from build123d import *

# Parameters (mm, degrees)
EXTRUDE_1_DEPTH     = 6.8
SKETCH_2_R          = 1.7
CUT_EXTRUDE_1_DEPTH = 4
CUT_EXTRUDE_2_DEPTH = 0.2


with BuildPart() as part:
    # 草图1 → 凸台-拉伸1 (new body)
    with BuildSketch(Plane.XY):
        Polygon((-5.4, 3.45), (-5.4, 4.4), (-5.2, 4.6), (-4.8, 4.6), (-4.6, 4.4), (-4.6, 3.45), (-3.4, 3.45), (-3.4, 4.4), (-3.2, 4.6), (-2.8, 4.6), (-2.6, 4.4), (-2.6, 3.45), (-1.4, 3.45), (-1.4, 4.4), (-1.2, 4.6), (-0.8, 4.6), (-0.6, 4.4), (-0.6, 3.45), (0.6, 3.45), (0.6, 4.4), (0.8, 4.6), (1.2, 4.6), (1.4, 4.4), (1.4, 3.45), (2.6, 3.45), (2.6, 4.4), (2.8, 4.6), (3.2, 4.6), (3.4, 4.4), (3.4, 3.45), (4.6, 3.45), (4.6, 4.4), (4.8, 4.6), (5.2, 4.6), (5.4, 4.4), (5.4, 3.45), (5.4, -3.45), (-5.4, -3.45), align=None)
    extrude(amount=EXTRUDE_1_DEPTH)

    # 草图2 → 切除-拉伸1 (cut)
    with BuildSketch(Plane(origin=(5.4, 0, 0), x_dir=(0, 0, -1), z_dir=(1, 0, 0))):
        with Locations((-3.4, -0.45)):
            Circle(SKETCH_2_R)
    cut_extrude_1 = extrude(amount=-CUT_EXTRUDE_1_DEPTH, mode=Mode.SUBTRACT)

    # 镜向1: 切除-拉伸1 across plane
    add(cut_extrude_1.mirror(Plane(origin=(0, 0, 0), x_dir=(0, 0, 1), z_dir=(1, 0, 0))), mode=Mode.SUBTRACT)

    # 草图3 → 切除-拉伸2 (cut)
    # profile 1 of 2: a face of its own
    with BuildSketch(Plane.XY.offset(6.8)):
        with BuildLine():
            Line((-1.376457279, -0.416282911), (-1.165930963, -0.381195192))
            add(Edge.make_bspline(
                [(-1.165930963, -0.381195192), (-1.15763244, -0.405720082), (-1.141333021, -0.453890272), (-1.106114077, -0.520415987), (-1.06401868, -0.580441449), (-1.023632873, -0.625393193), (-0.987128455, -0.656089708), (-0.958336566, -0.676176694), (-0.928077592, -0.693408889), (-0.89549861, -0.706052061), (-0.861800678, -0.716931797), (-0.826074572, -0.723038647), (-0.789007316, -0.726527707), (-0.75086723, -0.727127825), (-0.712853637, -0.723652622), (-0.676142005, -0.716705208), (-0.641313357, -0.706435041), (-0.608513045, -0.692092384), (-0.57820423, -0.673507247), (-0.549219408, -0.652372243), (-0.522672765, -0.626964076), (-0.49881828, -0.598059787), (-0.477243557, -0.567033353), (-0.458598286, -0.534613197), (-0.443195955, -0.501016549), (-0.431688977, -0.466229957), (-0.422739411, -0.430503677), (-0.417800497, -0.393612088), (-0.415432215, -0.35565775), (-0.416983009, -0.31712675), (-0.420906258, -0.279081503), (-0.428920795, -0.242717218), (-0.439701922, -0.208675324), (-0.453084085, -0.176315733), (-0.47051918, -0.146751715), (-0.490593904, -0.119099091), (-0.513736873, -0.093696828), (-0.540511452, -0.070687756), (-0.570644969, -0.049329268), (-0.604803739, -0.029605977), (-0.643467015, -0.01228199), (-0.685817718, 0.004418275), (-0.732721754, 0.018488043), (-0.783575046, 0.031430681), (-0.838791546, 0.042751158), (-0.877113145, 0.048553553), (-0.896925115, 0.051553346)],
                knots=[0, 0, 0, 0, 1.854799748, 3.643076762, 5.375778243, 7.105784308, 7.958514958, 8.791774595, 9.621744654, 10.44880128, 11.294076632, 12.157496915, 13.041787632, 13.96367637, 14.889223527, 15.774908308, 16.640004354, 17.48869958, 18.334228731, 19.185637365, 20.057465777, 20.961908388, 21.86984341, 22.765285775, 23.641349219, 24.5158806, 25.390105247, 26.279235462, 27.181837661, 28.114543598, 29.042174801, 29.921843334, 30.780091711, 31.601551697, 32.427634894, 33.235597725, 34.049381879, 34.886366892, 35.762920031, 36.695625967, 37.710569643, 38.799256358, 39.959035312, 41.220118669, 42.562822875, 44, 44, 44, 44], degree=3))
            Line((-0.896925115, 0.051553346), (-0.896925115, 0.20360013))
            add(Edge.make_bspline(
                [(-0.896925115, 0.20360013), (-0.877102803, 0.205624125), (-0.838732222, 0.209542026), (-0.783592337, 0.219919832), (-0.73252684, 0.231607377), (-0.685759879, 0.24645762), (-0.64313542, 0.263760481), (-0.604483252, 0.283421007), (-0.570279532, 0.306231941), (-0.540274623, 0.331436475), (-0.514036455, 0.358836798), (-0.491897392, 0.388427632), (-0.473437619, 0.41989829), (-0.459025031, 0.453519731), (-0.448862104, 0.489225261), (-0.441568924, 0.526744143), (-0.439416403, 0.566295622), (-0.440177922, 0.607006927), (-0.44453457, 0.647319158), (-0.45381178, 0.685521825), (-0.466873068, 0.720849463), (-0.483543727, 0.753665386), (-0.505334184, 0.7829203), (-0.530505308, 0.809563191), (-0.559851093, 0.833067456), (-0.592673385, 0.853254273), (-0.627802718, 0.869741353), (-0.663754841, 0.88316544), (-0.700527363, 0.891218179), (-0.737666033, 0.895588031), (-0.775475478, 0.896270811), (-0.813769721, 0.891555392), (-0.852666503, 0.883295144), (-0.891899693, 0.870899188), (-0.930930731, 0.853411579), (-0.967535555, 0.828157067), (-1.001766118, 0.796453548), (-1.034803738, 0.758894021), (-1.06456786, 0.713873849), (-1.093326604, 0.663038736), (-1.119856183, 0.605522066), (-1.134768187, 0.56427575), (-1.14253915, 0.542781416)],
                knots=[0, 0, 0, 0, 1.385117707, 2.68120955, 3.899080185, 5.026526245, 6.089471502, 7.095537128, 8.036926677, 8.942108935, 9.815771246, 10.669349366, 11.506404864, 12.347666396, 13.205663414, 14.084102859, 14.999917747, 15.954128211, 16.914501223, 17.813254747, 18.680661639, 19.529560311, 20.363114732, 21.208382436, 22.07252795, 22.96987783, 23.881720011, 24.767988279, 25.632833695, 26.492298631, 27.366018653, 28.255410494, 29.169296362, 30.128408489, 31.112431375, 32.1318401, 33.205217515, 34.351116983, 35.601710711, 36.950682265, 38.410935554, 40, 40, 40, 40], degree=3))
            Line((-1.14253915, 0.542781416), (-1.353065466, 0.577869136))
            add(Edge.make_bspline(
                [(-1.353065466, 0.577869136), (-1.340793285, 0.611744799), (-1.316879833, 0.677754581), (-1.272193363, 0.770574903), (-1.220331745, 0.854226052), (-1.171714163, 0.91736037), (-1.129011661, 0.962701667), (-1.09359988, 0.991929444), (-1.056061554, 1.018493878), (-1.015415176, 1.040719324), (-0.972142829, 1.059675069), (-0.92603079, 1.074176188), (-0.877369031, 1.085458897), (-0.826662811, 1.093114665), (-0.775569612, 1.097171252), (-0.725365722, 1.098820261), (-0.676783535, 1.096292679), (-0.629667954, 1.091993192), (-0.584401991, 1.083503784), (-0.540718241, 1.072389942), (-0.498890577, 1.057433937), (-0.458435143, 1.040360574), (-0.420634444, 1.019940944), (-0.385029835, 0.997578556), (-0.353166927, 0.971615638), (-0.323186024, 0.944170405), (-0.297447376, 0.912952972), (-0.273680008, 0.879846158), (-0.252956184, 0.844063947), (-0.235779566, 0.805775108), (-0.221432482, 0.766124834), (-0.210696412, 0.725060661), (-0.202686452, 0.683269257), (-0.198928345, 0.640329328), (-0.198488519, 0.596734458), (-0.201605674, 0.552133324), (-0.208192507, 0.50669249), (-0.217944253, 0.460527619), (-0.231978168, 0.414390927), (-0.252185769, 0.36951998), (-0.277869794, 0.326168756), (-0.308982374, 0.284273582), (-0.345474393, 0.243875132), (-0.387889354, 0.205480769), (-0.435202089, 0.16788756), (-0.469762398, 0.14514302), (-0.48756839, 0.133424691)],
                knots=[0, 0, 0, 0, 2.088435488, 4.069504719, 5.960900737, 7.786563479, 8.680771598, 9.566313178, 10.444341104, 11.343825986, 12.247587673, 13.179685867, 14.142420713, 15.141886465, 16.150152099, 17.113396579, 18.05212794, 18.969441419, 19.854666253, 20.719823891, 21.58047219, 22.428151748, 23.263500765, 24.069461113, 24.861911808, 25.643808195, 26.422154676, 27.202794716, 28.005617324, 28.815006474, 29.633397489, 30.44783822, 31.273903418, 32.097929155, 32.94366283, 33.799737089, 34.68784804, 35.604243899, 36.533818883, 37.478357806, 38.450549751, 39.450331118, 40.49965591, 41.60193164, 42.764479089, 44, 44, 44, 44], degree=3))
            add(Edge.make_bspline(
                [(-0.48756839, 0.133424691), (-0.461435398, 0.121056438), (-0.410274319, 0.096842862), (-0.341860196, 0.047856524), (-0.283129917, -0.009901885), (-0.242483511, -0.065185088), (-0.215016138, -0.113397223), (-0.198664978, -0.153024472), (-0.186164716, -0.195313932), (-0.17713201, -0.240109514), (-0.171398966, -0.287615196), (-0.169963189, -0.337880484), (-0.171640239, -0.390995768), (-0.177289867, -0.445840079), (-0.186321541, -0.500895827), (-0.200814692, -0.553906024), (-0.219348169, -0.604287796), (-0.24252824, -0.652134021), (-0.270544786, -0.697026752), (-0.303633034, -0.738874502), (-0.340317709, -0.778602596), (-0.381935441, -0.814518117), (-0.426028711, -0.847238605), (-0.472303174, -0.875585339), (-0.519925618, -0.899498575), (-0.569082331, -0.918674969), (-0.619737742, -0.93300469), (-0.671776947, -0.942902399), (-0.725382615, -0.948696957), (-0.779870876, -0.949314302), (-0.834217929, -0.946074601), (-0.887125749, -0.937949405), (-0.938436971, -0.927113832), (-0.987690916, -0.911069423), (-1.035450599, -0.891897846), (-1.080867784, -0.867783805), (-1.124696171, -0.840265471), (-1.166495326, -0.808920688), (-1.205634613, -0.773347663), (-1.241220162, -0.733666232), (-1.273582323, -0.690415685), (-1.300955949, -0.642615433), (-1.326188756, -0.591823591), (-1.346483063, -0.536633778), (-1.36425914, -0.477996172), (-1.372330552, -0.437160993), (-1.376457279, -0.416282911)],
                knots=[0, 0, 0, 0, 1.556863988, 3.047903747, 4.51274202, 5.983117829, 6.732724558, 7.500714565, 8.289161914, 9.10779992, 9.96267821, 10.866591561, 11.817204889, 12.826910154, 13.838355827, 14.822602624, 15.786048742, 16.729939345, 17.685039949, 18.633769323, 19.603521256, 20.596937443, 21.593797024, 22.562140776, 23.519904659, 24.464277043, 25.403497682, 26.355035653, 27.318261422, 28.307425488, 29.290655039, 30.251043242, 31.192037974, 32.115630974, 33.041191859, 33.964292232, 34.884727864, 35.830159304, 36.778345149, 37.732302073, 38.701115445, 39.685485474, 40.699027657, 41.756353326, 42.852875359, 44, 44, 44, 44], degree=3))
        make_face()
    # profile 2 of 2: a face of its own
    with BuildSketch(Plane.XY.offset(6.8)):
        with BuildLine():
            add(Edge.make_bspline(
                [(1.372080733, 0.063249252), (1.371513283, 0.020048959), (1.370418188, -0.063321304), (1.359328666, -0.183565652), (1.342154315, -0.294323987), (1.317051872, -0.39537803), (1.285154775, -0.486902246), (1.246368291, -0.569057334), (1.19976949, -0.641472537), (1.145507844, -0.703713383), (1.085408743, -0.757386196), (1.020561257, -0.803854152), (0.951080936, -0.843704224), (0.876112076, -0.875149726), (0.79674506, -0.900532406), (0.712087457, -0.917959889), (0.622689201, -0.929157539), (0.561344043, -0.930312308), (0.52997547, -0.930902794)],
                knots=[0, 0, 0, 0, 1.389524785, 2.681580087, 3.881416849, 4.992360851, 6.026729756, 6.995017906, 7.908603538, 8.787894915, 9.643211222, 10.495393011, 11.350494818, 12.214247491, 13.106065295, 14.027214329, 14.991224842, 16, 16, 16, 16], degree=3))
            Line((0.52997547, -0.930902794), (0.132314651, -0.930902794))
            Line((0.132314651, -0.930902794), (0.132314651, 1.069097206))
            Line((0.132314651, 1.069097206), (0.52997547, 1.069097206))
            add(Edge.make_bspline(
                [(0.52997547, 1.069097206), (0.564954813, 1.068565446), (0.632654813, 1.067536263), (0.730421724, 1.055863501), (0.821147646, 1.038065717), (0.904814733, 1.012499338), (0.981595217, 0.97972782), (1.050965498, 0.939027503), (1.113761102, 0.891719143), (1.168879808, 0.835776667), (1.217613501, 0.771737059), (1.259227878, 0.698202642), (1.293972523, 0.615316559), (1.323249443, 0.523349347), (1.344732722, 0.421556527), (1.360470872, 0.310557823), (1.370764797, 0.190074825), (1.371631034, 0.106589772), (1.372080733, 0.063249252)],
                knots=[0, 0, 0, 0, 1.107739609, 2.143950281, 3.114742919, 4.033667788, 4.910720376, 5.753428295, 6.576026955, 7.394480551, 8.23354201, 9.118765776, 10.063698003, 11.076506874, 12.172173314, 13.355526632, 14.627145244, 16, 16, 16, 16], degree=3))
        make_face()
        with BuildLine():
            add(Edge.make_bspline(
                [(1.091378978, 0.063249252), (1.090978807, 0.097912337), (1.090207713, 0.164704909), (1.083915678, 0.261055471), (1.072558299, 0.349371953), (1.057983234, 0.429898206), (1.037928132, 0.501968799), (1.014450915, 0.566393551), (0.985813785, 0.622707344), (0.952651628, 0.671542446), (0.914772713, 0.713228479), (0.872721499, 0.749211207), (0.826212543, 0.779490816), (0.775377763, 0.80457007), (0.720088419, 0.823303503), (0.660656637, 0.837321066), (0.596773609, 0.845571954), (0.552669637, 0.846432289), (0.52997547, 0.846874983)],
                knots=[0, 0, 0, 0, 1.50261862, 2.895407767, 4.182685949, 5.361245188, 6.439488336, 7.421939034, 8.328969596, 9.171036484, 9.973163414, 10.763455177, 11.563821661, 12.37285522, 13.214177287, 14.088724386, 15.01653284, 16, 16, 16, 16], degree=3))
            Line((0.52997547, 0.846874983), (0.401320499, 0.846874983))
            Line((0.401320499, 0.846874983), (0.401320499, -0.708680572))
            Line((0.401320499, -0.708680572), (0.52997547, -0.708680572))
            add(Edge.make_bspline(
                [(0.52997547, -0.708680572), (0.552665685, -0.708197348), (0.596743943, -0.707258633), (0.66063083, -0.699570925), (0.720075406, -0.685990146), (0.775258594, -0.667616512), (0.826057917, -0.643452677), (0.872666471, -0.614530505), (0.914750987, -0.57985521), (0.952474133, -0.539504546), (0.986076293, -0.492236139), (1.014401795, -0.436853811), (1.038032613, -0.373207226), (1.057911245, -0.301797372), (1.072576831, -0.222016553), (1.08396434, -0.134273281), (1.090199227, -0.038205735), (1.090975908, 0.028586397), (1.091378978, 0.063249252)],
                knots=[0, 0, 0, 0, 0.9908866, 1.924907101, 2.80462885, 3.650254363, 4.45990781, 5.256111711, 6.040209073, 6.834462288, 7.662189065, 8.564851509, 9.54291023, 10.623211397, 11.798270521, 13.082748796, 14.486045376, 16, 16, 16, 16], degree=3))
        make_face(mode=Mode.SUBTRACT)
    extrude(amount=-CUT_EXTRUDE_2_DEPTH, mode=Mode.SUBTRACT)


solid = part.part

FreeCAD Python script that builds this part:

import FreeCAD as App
import Part
import Sketcher
Q = App.Units.Quantity

doc = App.newDocument("Part")
params = doc.addObject("Spreadsheet::Sheet", "Params")
for row, (alias, value) in enumerate([
    ("sketch1_width", "10.8 mm"),
    ("sketch1_width2", "0.4 mm"),
    ("sketch1_width3", "1.2 mm"),
    ("sketch1_height", "7.85 mm"),
    ("sketch1_height2", "0.95 mm"),
    ("pad1_length", "6.8 mm"),
    ("sketch2_diameter", "3.4 mm"),
    ("pocket1_length", "4 mm"),
    ("pocket2_length", "0.2 mm"),
], start=1):
    params.set(f"A{row}", alias)
    params.set(f"B{row}", "=" + value)
    params.setAlias(f"B{row}", alias)

body = doc.addObject("PartDesign::Body", "Body")

# Sketch on XY plane
sketch1 = body.newObject("Sketcher::SketchObject", "Sketch")
sketch1.AttachmentSupport = (doc.getObject("XY_Plane"), [""])
sketch1.MapMode = "FlatFace"
sketch1.addGeometry([
    Part.LineSegment(App.Vector(-5.4, 4.4, 0), App.Vector(-5.4, -3.45, 0)),  # 0
    Part.LineSegment(App.Vector(-5.4, -3.45, 0), App.Vector(5.4, -3.45, 0)),  # 1
    Part.LineSegment(App.Vector(5.4, -3.45, 0), App.Vector(5.4, 4.4, 0)),  # 2
    Part.LineSegment(App.Vector(5.4, 4.4, 0), App.Vector(5.2, 4.6, 0)),  # 3
    Part.LineSegment(App.Vector(5.2, 4.6, 0), App.Vector(4.8, 4.6, 0)),  # 4
    Part.LineSegment(App.Vector(4.8, 4.6, 0), App.Vector(4.6, 4.4, 0)),  # 5
    Part.LineSegment(App.Vector(4.6, 4.4, 0), App.Vector(4.6, 3.45, 0)),  # 6
    Part.LineSegment(App.Vector(4.6, 3.45, 0), App.Vector(3.4, 3.45, 0)),  # 7
    Part.LineSegment(App.Vector(3.4, 3.45, 0), App.Vector(3.4, 4.4, 0)),  # 8
    Part.LineSegment(App.Vector(3.4, 4.4, 0), App.Vector(3.2, 4.6, 0)),  # 9
    Part.LineSegment(App.Vector(3.2, 4.6, 0), App.Vector(2.8, 4.6, 0)),  # 10
    Part.LineSegment(App.Vector(2.8, 4.6, 0), App.Vector(2.6, 4.4, 0)),  # 11
    Part.LineSegment(App.Vector(2.6, 4.4, 0), App.Vector(2.6, 3.45, 0)),  # 12
    Part.LineSegment(App.Vector(2.6, 3.45, 0), App.Vector(1.4, 3.45, 0)),  # 13
    Part.LineSegment(App.Vector(1.4, 3.45, 0), App.Vector(1.4, 4.4, 0)),  # 14
    Part.LineSegment(App.Vector(1.4, 4.4, 0), App.Vector(1.2, 4.6, 0)),  # 15
    Part.LineSegment(App.Vector(1.2, 4.6, 0), App.Vector(0.8, 4.6, 0)),  # 16
    Part.LineSegment(App.Vector(0.8, 4.6, 0), App.Vector(0.6, 4.4, 0)),  # 17
    Part.LineSegment(App.Vector(0.6, 4.4, 0), App.Vector(0.6, 3.45, 0)),  # 18
    Part.LineSegment(App.Vector(0.6, 3.45, 0), App.Vector(-0.6, 3.45, 0)),  # 19
    Part.LineSegment(App.Vector(-0.6, 3.45, 0), App.Vector(-0.6, 4.4, 0)),  # 20
    Part.LineSegment(App.Vector(-0.6, 4.4, 0), App.Vector(-0.8, 4.6, 0)),  # 21
    Part.LineSegment(App.Vector(-0.8, 4.6, 0), App.Vector(-1.2, 4.6, 0)),  # 22
    Part.LineSegment(App.Vector(-1.2, 4.6, 0), App.Vector(-1.4, 4.4, 0)),  # 23
    Part.LineSegment(App.Vector(-1.4, 4.4, 0), App.Vector(-1.4, 3.45, 0)),  # 24
    Part.LineSegment(App.Vector(-1.4, 3.45, 0), App.Vector(-2.6, 3.45, 0)),  # 25
    Part.LineSegment(App.Vector(-2.6, 3.45, 0), App.Vector(-2.6, 4.4, 0)),  # 26
    Part.LineSegment(App.Vector(-2.6, 4.4, 0), App.Vector(-2.8, 4.6, 0)),  # 27
    Part.LineSegment(App.Vector(-2.8, 4.6, 0), App.Vector(-3.2, 4.6, 0)),  # 28
    Part.LineSegment(App.Vector(-3.2, 4.6, 0), App.Vector(-3.4, 4.4, 0)),  # 29
    Part.LineSegment(App.Vector(-3.4, 4.4, 0), App.Vector(-3.4, 3.45, 0)),  # 30
    Part.LineSegment(App.Vector(-3.4, 3.45, 0), App.Vector(-4.6, 3.45, 0)),  # 31
    Part.LineSegment(App.Vector(-4.6, 3.45, 0), App.Vector(-4.6, 4.4, 0)),  # 32
    Part.LineSegment(App.Vector(-4.6, 4.4, 0), App.Vector(-4.8, 4.6, 0)),  # 33
    Part.LineSegment(App.Vector(-4.8, 4.6, 0), App.Vector(-5.2, 4.6, 0)),  # 34
    Part.LineSegment(App.Vector(-5.2, 4.6, 0), App.Vector(-5.4, 4.4, 0)),  # 35
], False)
sketch1.addConstraint([
    Sketcher.Constraint("Coincident", 0, 2, 1, 1),
    Sketcher.Constraint("Coincident", 1, 2, 2, 1),
    Sketcher.Constraint("Coincident", 2, 2, 3, 1),
    Sketcher.Constraint("Coincident", 3, 2, 4, 1),
    Sketcher.Constraint("Coincident", 4, 2, 5, 1),
    Sketcher.Constraint("Coincident", 5, 2, 6, 1),
    Sketcher.Constraint("Coincident", 6, 2, 7, 1),
    Sketcher.Constraint("Coincident", 7, 2, 8, 1),
    Sketcher.Constraint("Coincident", 8, 2, 9, 1),
    Sketcher.Constraint("Coincident", 9, 2, 10, 1),
    Sketcher.Constraint("Coincident", 10, 2, 11, 1),
    Sketcher.Constraint("Coincident", 11, 2, 12, 1),
    Sketcher.Constraint("Coincident", 12, 2, 13, 1),
    Sketcher.Constraint("Coincident", 13, 2, 14, 1),
    Sketcher.Constraint("Coincident", 14, 2, 15, 1),
    Sketcher.Constraint("Coincident", 15, 2, 16, 1),
    Sketcher.Constraint("Coincident", 16, 2, 17, 1),
    Sketcher.Constraint("Coincident", 17, 2, 18, 1),
    Sketcher.Constraint("Coincident", 18, 2, 19, 1),
    Sketcher.Constraint("Coincident", 19, 2, 20, 1),
    Sketcher.Constraint("Coincident", 20, 2, 21, 1),
    Sketcher.Constraint("Coincident", 21, 2, 22, 1),
    Sketcher.Constraint("Coincident", 22, 2, 23, 1),
    Sketcher.Constraint("Coincident", 23, 2, 24, 1),
    Sketcher.Constraint("Coincident", 24, 2, 25, 1),
    Sketcher.Constraint("Coincident", 25, 2, 26, 1),
    Sketcher.Constraint("Coincident", 26, 2, 27, 1),
    Sketcher.Constraint("Coincident", 27, 2, 28, 1),
    Sketcher.Constraint("Coincident", 28, 2, 29, 1),
    Sketcher.Constraint("Coincident", 29, 2, 30, 1),
    Sketcher.Constraint("Coincident", 30, 2, 31, 1),
    Sketcher.Constraint("Coincident", 31, 2, 32, 1),
    Sketcher.Constraint("Coincident", 32, 2, 33, 1),
    Sketcher.Constraint("Coincident", 33, 2, 34, 1),
    Sketcher.Constraint("Coincident", 34, 2, 35, 1),
    Sketcher.Constraint("Coincident", 35, 2, 0, 1),
    Sketcher.Constraint("Vertical", 0),
    Sketcher.Constraint("Horizontal", 1),
    Sketcher.Constraint("Vertical", 2),
    Sketcher.Constraint("Horizontal", 4),
    Sketcher.Constraint("Vertical", 6),
    Sketcher.Constraint("Horizontal", 7),
    Sketcher.Constraint("Vertical", 8),
    Sketcher.Constraint("Horizontal", 10),
    Sketcher.Constraint("Vertical", 12),
    Sketcher.Constraint("Horizontal", 13),
    Sketcher.Constraint("Vertical", 14),
    Sketcher.Constraint("Horizontal", 16),
    Sketcher.Constraint("Vertical", 18),
    Sketcher.Constraint("Horizontal", 19),
    Sketcher.Constraint("Vertical", 20),
    Sketcher.Constraint("Horizontal", 22),
    Sketcher.Constraint("Vertical", 24),
    Sketcher.Constraint("Horizontal", 25),
    Sketcher.Constraint("Vertical", 26),
    Sketcher.Constraint("Horizontal", 28),
    Sketcher.Constraint("Vertical", 30),
    Sketcher.Constraint("Horizontal", 31),
    Sketcher.Constraint("Vertical", 32),
    Sketcher.Constraint("Horizontal", 34),
    Sketcher.Constraint("Symmetric", 17, 2, 20, 2, -2),
    Sketcher.Constraint("Symmetric", 16, 2, 21, 2, -2),
    Sketcher.Constraint("Symmetric", 14, 2, 23, 2, -2),
    Sketcher.Constraint("Symmetric", 12, 2, 25, 2, -2),
    Sketcher.Constraint("Symmetric", 10, 2, 27, 2, -2),
    Sketcher.Constraint("Symmetric", 8, 2, 29, 2, -2),
    Sketcher.Constraint("Symmetric", 6, 2, 31, 2, -2),
    Sketcher.Constraint("Symmetric", 4, 2, 33, 2, -2),
    Sketcher.Constraint("Symmetric", 2, 2, 35, 2, -2),
    Sketcher.Constraint("Perpendicular", 3, 5),
    Sketcher.Constraint("Perpendicular", 5, 9),
    Sketcher.Constraint("Perpendicular", 9, 11),
    Sketcher.Constraint("Perpendicular", 11, 15),
    Sketcher.Constraint("Perpendicular", 15, 17),
    Sketcher.Constraint("Perpendicular", 17, 21),
    Sketcher.Constraint("Perpendicular", 21, 23),
    Sketcher.Constraint("Perpendicular", 23, 27),
    Sketcher.Constraint("Perpendicular", 27, 29),
    Sketcher.Constraint("Perpendicular", 29, 33),
    Sketcher.Constraint("Perpendicular", 33, 35),
    Sketcher.Constraint("Horizontal", 2, 2, 5, 2),
    Sketcher.Constraint("Horizontal", 5, 2, 8, 2),
    Sketcher.Constraint("Horizontal", 4, 2, 9, 2),
    Sketcher.Constraint("Horizontal", 8, 2, 11, 2),
    Sketcher.Constraint("Horizontal", 7, 2, 12, 2),
    Sketcher.Constraint("Horizontal", 11, 2, 14, 2),
    Sketcher.Constraint("Horizontal", 10, 2, 15, 2),
    Sketcher.Constraint("Horizontal", 14, 2, 17, 2),
    Sketcher.Constraint("Horizontal", 13, 2, 18, 2),
    Sketcher.Constraint("Equal", 4, 10),
    Sketcher.Constraint("Equal", 7, 13),
    Sketcher.Constraint("Equal", 10, 16),
    Sketcher.Constraint("Equal", 13, 19),
    Sketcher.Constraint("DistanceX", 1, 1, 1, 2, Q("10.8 mm")),
    Sketcher.Constraint("DistanceX", 4, 2, 4, 1, Q("0.4 mm")),
    Sketcher.Constraint("DistanceX", 7, 2, 7, 1, Q("1.2 mm")),
    Sketcher.Constraint("DistanceY", 0, 2, 0, 1, Q("7.85 mm")),
    Sketcher.Constraint("DistanceY", 6, 2, 6, 1, Q("0.95 mm")),
    Sketcher.Constraint("DistanceY", -1, 1, 2, 2, Q("4.4 mm")),
])
sketch1.setExpression("Constraints[93]", "Params.sketch1_width")
sketch1.setExpression("Constraints[94]", "Params.sketch1_width2")
sketch1.setExpression("Constraints[95]", "Params.sketch1_width3")
sketch1.setExpression("Constraints[96]", "Params.sketch1_height")
sketch1.setExpression("Constraints[97]", "Params.sketch1_height2")
pad1 = body.newObject("PartDesign::Pad", "Pad")
pad1.Profile = sketch1
pad1.setExpression("Length", "Params.pad1_length")

# Sketch on YZ plane
sketch2 = body.newObject("Sketcher::SketchObject", "Sketch001")
sketch2.AttachmentSupport = (doc.getObject("YZ_Plane"), [""])
sketch2.MapMode = "FlatFace"
sketch2.AttachmentOffset = App.Placement(App.Vector(0, 0, 5.4), App.Rotation())
sketch2.addGeometry(Part.Circle(App.Vector(-0.45, 3.4, 0), App.Vector(0, 0, 1), 1.7), False)
sketch2.addConstraint([
    Sketcher.Constraint("Diameter", 0, Q("3.4 mm")),
    Sketcher.Constraint("DistanceY", -1, 1, 0, 3, Q("3.4 mm")),
    Sketcher.Constraint("DistanceX", 0, 3, -1, 1, Q("0.45 mm")),
])
sketch2.setExpression("Constraints[0]", "Params.sketch2_diameter")
pocket1 = body.newObject("PartDesign::Pocket", "Pocket")
pocket1.Profile = sketch2
pocket1.setExpression("Length", "Params.pocket1_length")
doc.recompute()

mirrored = body.newObject("PartDesign::Mirrored", "Mirrored")
mirrored.Originals = [pocket1]
mirrored.MirrorPlane = (doc.getObject("YZ_Plane"), [""])
body.Tip = mirrored

# Sketch on XY plane
sketch3 = body.newObject("Sketcher::SketchObject", "Sketch002")
sketch3.AttachmentSupport = (doc.getObject("XY_Plane"), [""])
sketch3.MapMode = "FlatFace"
sketch3.AttachmentOffset = App.Placement(App.Vector(0, 0, 6.8), App.Rotation())
sketch3.addGeometry([
    Part.LineSegment(App.Vector(-1.165931, -0.381195, 0), App.Vector(-1.376457, -0.416283, 0)),  # 0
    Part.BSplineCurve([App.Vector(-0.487568, 0.133425, 0), App.Vector(-0.461435, 0.121056, 0), App.Vector(-0.410274, 0.096843, 0), App.Vector(-0.34186, 0.047857, 0), App.Vector(-0.28313, -0.009902, 0), App.Vector(-0.242484, -0.065185, 0), App.Vector(-0.215016, -0.113397, 0), App.Vector(-0.198665, -0.153024, 0), App.Vector(-0.186165, -0.195314, 0), App.Vector(-0.177132, -0.24011, 0), App.Vector(-0.171399, -0.287615, 0), App.Vector(-0.169963, -0.33788, 0), App.Vector(-0.17164, -0.390996, 0), App.Vector(-0.17729, -0.44584, 0), App.Vector(-0.186322, -0.500896, 0), App.Vector(-0.200815, -0.553906, 0), App.Vector(-0.219348, -0.604288, 0), App.Vector(-0.242528, -0.652134, 0), App.Vector(-0.270545, -0.697027, 0), App.Vector(-0.303633, -0.738875, 0), App.Vector(-0.340318, -0.778603, 0), App.Vector(-0.381935, -0.814518, 0), App.Vector(-0.426029, -0.847239, 0), App.Vector(-0.472303, -0.875585, 0), App.Vector(-0.519926, -0.899499, 0), App.Vector(-0.569082, -0.918675, 0), App.Vector(-0.619738, -0.933005, 0), App.Vector(-0.671777, -0.942902, 0), App.Vector(-0.725383, -0.948697, 0), App.Vector(-0.779871, -0.949314, 0), App.Vector(-0.834218, -0.946075, 0), App.Vector(-0.887126, -0.937949, 0), App.Vector(-0.938437, -0.927114, 0), App.Vector(-0.987691, -0.911069, 0), App.Vector(-1.035451, -0.891898, 0), App.Vector(-1.080868, -0.867784, 0), App.Vector(-1.124696, -0.840265, 0), App.Vector(-1.166495, -0.808921, 0), App.Vector(-1.205635, -0.773348, 0), App.Vector(-1.24122, -0.733666, 0), App.Vector(-1.273582, -0.690416, 0), App.Vector(-1.300956, -0.642615, 0), App.Vector(-1.326189, -0.591824, 0), App.Vector(-1.346483, -0.536634, 0), App.Vector(-1.364259, -0.477996, 0), App.Vector(-1.372331, -0.437161, 0), App.Vector(-1.376457, -0.416283, 0)], [4, 1, 1, 1, 1, 1, 1, 1, 1, 1, 1, 1, 1, 1, 1, 1, 1, 1, 1, 1, 1, 1, 1, 1, 1, 1, 1, 1, 1, 1, 1, 1, 1, 1, 1, 1, 1, 1, 1, 1, 1, 1, 1, 1, 4], [0, 1.556863988, 3.047903747, 4.51274202, 5.983117829, 6.732724558, 7.500714565, 8.289161914, 9.10779992, 9.96267821, 10.866591561, 11.817204889, 12.826910154, 13.838355827, 14.822602624, 15.786048742, 16.729939345, 17.685039949, 18.633769323, 19.603521256, 20.596937443, 21.593797024, 22.562140776, 23.519904659, 24.464277043, 25.403497682, 26.355035653, 27.318261422, 28.307425488, 29.290655039, 30.251043242, 31.192037974, 32.115630974, 33.041191859, 33.964292232, 34.884727864, 35.830159304, 36.778345149, 37.732302073, 38.701115445, 39.685485474, 40.699027657, 41.756353326, 42.852875359, 44], False, 3, [1, 1, 1, 1, 1, 1, 1, 1, 1, 1, 1, 1, 1, 1, 1, 1, 1, 1, 1, 1, 1, 1, 1, 1, 1, 1, 1, 1, 1, 1, 1, 1, 1, 1, 1, 1, 1, 1, 1, 1, 1, 1, 1, 1, 1, 1, 1], False),  # 1
    Part.BSplineCurve([App.Vector(-1.353065, 0.577869, 0), App.Vector(-1.340793, 0.611745, 0), App.Vector(-1.31688, 0.677755, 0), App.Vector(-1.272193, 0.770575, 0), App.Vector(-1.220332, 0.854226, 0), App.Vector(-1.171714, 0.91736, 0), App.Vector(-1.129012, 0.962702, 0), App.Vector(-1.0936, 0.991929, 0), App.Vector(-1.056062, 1.018494, 0), App.Vector(-1.015415, 1.040719, 0), App.Vector(-0.972143, 1.059675, 0), App.Vector(-0.926031, 1.074176, 0), App.Vector(-0.877369, 1.085459, 0), App.Vector(-0.826663, 1.093115, 0), App.Vector(-0.77557, 1.097171, 0), App.Vector(-0.725366, 1.09882, 0), App.Vector(-0.676784, 1.096293, 0), App.Vector(-0.629668, 1.091993, 0), App.Vector(-0.584402, 1.083504, 0), App.Vector(-0.540718, 1.07239, 0), App.Vector(-0.498891, 1.057434, 0), App.Vector(-0.458435, 1.040361, 0), App.Vector(-0.420634, 1.019941, 0), App.Vector(-0.38503, 0.997579, 0), App.Vector(-0.353167, 0.971616, 0), App.Vector(-0.323186, 0.94417, 0), App.Vector(-0.297447, 0.912953, 0), App.Vector(-0.27368, 0.879846, 0), App.Vector(-0.252956, 0.844064, 0), App.Vector(-0.23578, 0.805775, 0), App.Vector(-0.221432, 0.766125, 0), App.Vector(-0.210696, 0.725061, 0), App.Vector(-0.202686, 0.683269, 0), App.Vector(-0.198928, 0.640329, 0), App.Vector(-0.198489, 0.596734, 0), App.Vector(-0.201606, 0.552133, 0), App.Vector(-0.208193, 0.506692, 0), App.Vector(-0.217944, 0.460528, 0), App.Vector(-0.231978, 0.414391, 0), App.Vector(-0.252186, 0.36952, 0), App.Vector(-0.27787, 0.326169, 0), App.Vector(-0.308982, 0.284274, 0), App.Vector(-0.345474, 0.243875, 0), App.Vector(-0.387889, 0.205481, 0), App.Vector(-0.435202, 0.167888, 0), App.Vector(-0.469762, 0.145143, 0), App.Vector(-0.487568, 0.133425, 0)], [4, 1, 1, 1, 1, 1, 1, 1, 1, 1, 1, 1, 1, 1, 1, 1, 1, 1, 1, 1, 1, 1, 1, 1, 1, 1, 1, 1, 1, 1, 1, 1, 1, 1, 1, 1, 1, 1, 1, 1, 1, 1, 1, 1, 4], [0, 2.088435488, 4.069504719, 5.960900737, 7.786563479, 8.680771598, 9.566313178, 10.444341104, 11.343825986, 12.247587673, 13.179685867, 14.142420713, 15.141886465, 16.150152099, 17.113396579, 18.05212794, 18.969441419, 19.854666253, 20.719823891, 21.58047219, 22.428151748, 23.263500765, 24.069461113, 24.861911808, 25.643808195, 26.422154676, 27.202794716, 28.005617324, 28.815006474, 29.633397489, 30.44783822, 31.273903418, 32.097929155, 32.94366283, 33.799737089, 34.68784804, 35.604243899, 36.533818883, 37.478357806, 38.450549751, 39.450331118, 40.49965591, 41.60193164, 42.764479089, 44], False, 3, [1, 1, 1, 1, 1, 1, 1, 1, 1, 1, 1, 1, 1, 1, 1, 1, 1, 1, 1, 1, 1, 1, 1, 1, 1, 1, 1, 1, 1, 1, 1, 1, 1, 1, 1, 1, 1, 1, 1, 1, 1, 1, 1, 1, 1, 1, 1], False),  # 2
    Part.LineSegment(App.Vector(-1.353065, 0.577869, 0), App.Vector(-1.142539, 0.542781, 0)),  # 3
    Part.BSplineCurve([App.Vector(-0.896925, 0.2036, 0), App.Vector(-0.877103, 0.205624, 0), App.Vector(-0.838732, 0.209542, 0), App.Vector(-0.783592, 0.21992, 0), App.Vector(-0.732527, 0.231607, 0), App.Vector(-0.68576, 0.246458, 0), App.Vector(-0.643135, 0.26376, 0), App.Vector(-0.604483, 0.283421, 0), App.Vector(-0.57028, 0.306232, 0), App.Vector(-0.540275, 0.331436, 0), App.Vector(-0.514036, 0.358837, 0), App.Vector(-0.491897, 0.388428, 0), App.Vector(-0.473438, 0.419898, 0), App.Vector(-0.459025, 0.45352, 0), App.Vector(-0.448862, 0.489225, 0), App.Vector(-0.441569, 0.526744, 0), App.Vector(-0.439416, 0.566296, 0), App.Vector(-0.440178, 0.607007, 0), App.Vector(-0.444535, 0.647319, 0), App.Vector(-0.453812, 0.685522, 0), App.Vector(-0.466873, 0.720849, 0), App.Vector(-0.483544, 0.753665, 0), App.Vector(-0.505334, 0.78292, 0), App.Vector(-0.530505, 0.809563, 0), App.Vector(-0.559851, 0.833067, 0), App.Vector(-0.592673, 0.853254, 0), App.Vector(-0.627803, 0.869741, 0), App.Vector(-0.663755, 0.883165, 0), App.Vector(-0.700527, 0.891218, 0), App.Vector(-0.737666, 0.895588, 0), App.Vector(-0.775475, 0.896271, 0), App.Vector(-0.81377, 0.891555, 0), App.Vector(-0.852667, 0.883295, 0), App.Vector(-0.8919, 0.870899, 0), App.Vector(-0.930931, 0.853412, 0), App.Vector(-0.967536, 0.828157, 0), App.Vector(-1.001766, 0.796454, 0), App.Vector(-1.034804, 0.758894, 0), App.Vector(-1.064568, 0.713874, 0), App.Vector(-1.093327, 0.663039, 0), App.Vector(-1.119856, 0.605522, 0), App.Vector(-1.134768, 0.564276, 0), App.Vector(-1.142539, 0.542781, 0)], [4, 1, 1, 1, 1, 1, 1, 1, 1, 1, 1, 1, 1, 1, 1, 1, 1, 1, 1, 1, 1, 1, 1, 1, 1, 1, 1, 1, 1, 1, 1, 1, 1, 1, 1, 1, 1, 1, 1, 1, 4], [0, 1.385117707, 2.68120955, 3.899080185, 5.026526245, 6.089471502, 7.095537128, 8.036926677, 8.942108935, 9.815771246, 10.669349366, 11.506404864, 12.347666396, 13.205663414, 14.084102859, 14.999917747, 15.954128211, 16.914501223, 17.813254747, 18.680661639, 19.529560311, 20.363114732, 21.208382436, 22.07252795, 22.96987783, 23.881720011, 24.767988279, 25.632833695, 26.492298631, 27.366018653, 28.255410494, 29.169296362, 30.128408489, 31.112431375, 32.1318401, 33.205217515, 34.351116983, 35.601710711, 36.950682265, 38.410935554, 40], False, 3, [1, 1, 1, 1, 1, 1, 1, 1, 1, 1, 1, 1, 1, 1, 1, 1, 1, 1, 1, 1, 1, 1, 1, 1, 1, 1, 1, 1, 1, 1, 1, 1, 1, 1, 1, 1, 1, 1, 1, 1, 1, 1, 1], False),  # 4
    Part.LineSegment(App.Vector(-0.896925, 0.2036, 0), App.Vector(-0.896925, 0.051553, 0)),  # 5
    Part.BSplineCurve([App.Vector(-1.165931, -0.381195, 0), App.Vector(-1.157632, -0.40572, 0), App.Vector(-1.141333, -0.45389, 0), App.Vector(-1.106114, -0.520416, 0), App.Vector(-1.064019, -0.580441, 0), App.Vector(-1.023633, -0.625393, 0), App.Vector(-0.987128, -0.65609, 0), App.Vector(-0.958337, -0.676177, 0), App.Vector(-0.928078, -0.693409, 0), App.Vector(-0.895499, -0.706052, 0), App.Vector(-0.861801, -0.716932, 0), App.Vector(-0.826075, -0.723039, 0), App.Vector(-0.789007, -0.726528, 0), App.Vector(-0.750867, -0.727128, 0), App.Vector(-0.712854, -0.723653, 0), App.Vector(-0.676142, -0.716705, 0), App.Vector(-0.641313, -0.706435, 0), App.Vector(-0.608513, -0.692092, 0), App.Vector(-0.578204, -0.673507, 0), App.Vector(-0.549219, -0.652372, 0), App.Vector(-0.522673, -0.626964, 0), App.Vector(-0.498818, -0.59806, 0), App.Vector(-0.477244, -0.567033, 0), App.Vector(-0.458598, -0.534613, 0), App.Vector(-0.443196, -0.501017, 0), App.Vector(-0.431689, -0.46623, 0), App.Vector(-0.422739, -0.430504, 0), App.Vector(-0.4178, -0.393612, 0), App.Vector(-0.415432, -0.355658, 0), App.Vector(-0.416983, -0.317127, 0), App.Vector(-0.420906, -0.279082, 0), App.Vector(-0.428921, -0.242717, 0), App.Vector(-0.439702, -0.208675, 0), App.Vector(-0.453084, -0.176316, 0), App.Vector(-0.470519, -0.146752, 0), App.Vector(-0.490594, -0.119099, 0), App.Vector(-0.513737, -0.093697, 0), App.Vector(-0.540511, -0.070688, 0), App.Vector(-0.570645, -0.049329, 0), App.Vector(-0.604804, -0.029606, 0), App.Vector(-0.643467, -0.012282, 0), App.Vector(-0.685818, 0.004418, 0), App.Vector(-0.732722, 0.018488, 0), App.Vector(-0.783575, 0.031431, 0), App.Vector(-0.838792, 0.042751, 0), App.Vector(-0.877113, 0.048554, 0), App.Vector(-0.896925, 0.051553, 0)], [4, 1, 1, 1, 1, 1, 1, 1, 1, 1, 1, 1, 1, 1, 1, 1, 1, 1, 1, 1, 1, 1, 1, 1, 1, 1, 1, 1, 1, 1, 1, 1, 1, 1, 1, 1, 1, 1, 1, 1, 1, 1, 1, 1, 4], [0, 1.854799748, 3.643076762, 5.375778243, 7.105784308, 7.958514958, 8.791774595, 9.621744654, 10.44880128, 11.294076632, 12.157496915, 13.041787632, 13.96367637, 14.889223527, 15.774908308, 16.640004354, 17.48869958, 18.334228731, 19.185637365, 20.057465777, 20.961908388, 21.86984341, 22.765285775, 23.641349219, 24.5158806, 25.390105247, 26.279235462, 27.181837661, 28.114543598, 29.042174801, 29.921843334, 30.780091711, 31.601551697, 32.427634894, 33.235597725, 34.049381879, 34.886366892, 35.762920031, 36.695625967, 37.710569643, 38.799256358, 39.959035312, 41.220118669, 42.562822875, 44], False, 3, [1, 1, 1, 1, 1, 1, 1, 1, 1, 1, 1, 1, 1, 1, 1, 1, 1, 1, 1, 1, 1, 1, 1, 1, 1, 1, 1, 1, 1, 1, 1, 1, 1, 1, 1, 1, 1, 1, 1, 1, 1, 1, 1, 1, 1, 1, 1], False),  # 6
    Part.BSplineCurve([App.Vector(1.372081, 0.063249, 0), App.Vector(1.371513, 0.020049, 0), App.Vector(1.370418, -0.063321, 0), App.Vector(1.359329, -0.183566, 0), App.Vector(1.342154, -0.294324, 0), App.Vector(1.317052, -0.395378, 0), App.Vector(1.285155, -0.486902, 0), App.Vector(1.246368, -0.569057, 0), App.Vector(1.199769, -0.641473, 0), App.Vector(1.145508, -0.703713, 0), App.Vector(1.085409, -0.757386, 0), App.Vector(1.020561, -0.803854, 0), App.Vector(0.951081, -0.843704, 0), App.Vector(0.876112, -0.87515, 0), App.Vector(0.796745, -0.900532, 0), App.Vector(0.712087, -0.91796, 0), App.Vector(0.622689, -0.929158, 0), App.Vector(0.561344, -0.930312, 0), App.Vector(0.529975, -0.930903, 0)], [4, 1, 1, 1, 1, 1, 1, 1, 1, 1, 1, 1, 1, 1, 1, 1, 4], [0, 1.389524785, 2.681580087, 3.881416849, 4.992360851, 6.026729756, 6.995017906, 7.908603538, 8.787894915, 9.643211222, 10.495393011, 11.350494818, 12.214247491, 13.106065295, 14.027214329, 14.991224842, 16], False, 3, [1, 1, 1, 1, 1, 1, 1, 1, 1, 1, 1, 1, 1, 1, 1, 1, 1, 1, 1], False),  # 7
    Part.BSplineCurve([App.Vector(0.529975, 1.069097, 0), App.Vector(0.564955, 1.068565, 0), App.Vector(0.632655, 1.067536, 0), App.Vector(0.730422, 1.055864, 0), App.Vector(0.821148, 1.038066, 0), App.Vector(0.904815, 1.012499, 0), App.Vector(0.981595, 0.979728, 0), App.Vector(1.050965, 0.939028, 0), App.Vector(1.113761, 0.891719, 0), App.Vector(1.16888, 0.835777, 0), App.Vector(1.217614, 0.771737, 0), App.Vector(1.259228, 0.698203, 0), App.Vector(1.293973, 0.615317, 0), App.Vector(1.323249, 0.523349, 0), App.Vector(1.344733, 0.421557, 0), App.Vector(1.360471, 0.310558, 0), App.Vector(1.370765, 0.190075, 0), App.Vector(1.371631, 0.10659, 0), App.Vector(1.372081, 0.063249, 0)], [4, 1, 1, 1, 1, 1, 1, 1, 1, 1, 1, 1, 1, 1, 1, 1, 4], [0, 1.107739609, 2.143950281, 3.114742919, 4.033667788, 4.910720376, 5.753428295, 6.576026955, 7.394480551, 8.23354201, 9.118765776, 10.063698003, 11.076506874, 12.172173314, 13.355526632, 14.627145244, 16], False, 3, [1, 1, 1, 1, 1, 1, 1, 1, 1, 1, 1, 1, 1, 1, 1, 1, 1, 1, 1], False),  # 8
    Part.LineSegment(App.Vector(0.529975, 1.069097, 0), App.Vector(0.132315, 1.069097, 0)),  # 9
    Part.LineSegment(App.Vector(0.132315, 1.069097, 0), App.Vector(0.132315, -0.930903, 0)),  # 10
    Part.LineSegment(App.Vector(0.132315, -0.930903, 0), App.Vector(0.529975, -0.930903, 0)),  # 11
    Part.BSplineCurve([App.Vector(0.529975, -0.708681, 0), App.Vector(0.552666, -0.708197, 0), App.Vector(0.596744, -0.707259, 0), App.Vector(0.660631, -0.699571, 0), App.Vector(0.720075, -0.68599, 0), App.Vector(0.775259, -0.667617, 0), App.Vector(0.826058, -0.643453, 0), App.Vector(0.872666, -0.614531, 0), App.Vector(0.914751, -0.579855, 0), App.Vector(0.952474, -0.539505, 0), App.Vector(0.986076, -0.492236, 0), App.Vector(1.014402, -0.436854, 0), App.Vector(1.038033, -0.373207, 0), App.Vector(1.057911, -0.301797, 0), App.Vector(1.072577, -0.222017, 0), App.Vector(1.083964, -0.134273, 0), App.Vector(1.090199, -0.038206, 0), App.Vector(1.090976, 0.028586, 0), App.Vector(1.091379, 0.063249, 0)], [4, 1, 1, 1, 1, 1, 1, 1, 1, 1, 1, 1, 1, 1, 1, 1, 4], [0, 0.9908866, 1.924907101, 2.80462885, 3.650254363, 4.45990781, 5.256111711, 6.040209073, 6.834462288, 7.662189065, 8.564851509, 9.54291023, 10.623211397, 11.798270521, 13.082748796, 14.486045376, 16], False, 3, [1, 1, 1, 1, 1, 1, 1, 1, 1, 1, 1, 1, 1, 1, 1, 1, 1, 1, 1], False),  # 12
    Part.LineSegment(App.Vector(0.529975, -0.708681, 0), App.Vector(0.40132, -0.708681, 0)),  # 13
    Part.LineSegment(App.Vector(0.40132, -0.708681, 0), App.Vector(0.40132, 0.846875, 0)),  # 14
    Part.LineSegment(App.Vector(0.40132, 0.846875, 0), App.Vector(0.529975, 0.846875, 0)),  # 15
    Part.BSplineCurve([App.Vector(1.091379, 0.063249, 0), App.Vector(1.090979, 0.097912, 0), App.Vector(1.090208, 0.164705, 0), App.Vector(1.083916, 0.261055, 0), App.Vector(1.072558, 0.349372, 0), App.Vector(1.057983, 0.429898, 0), App.Vector(1.037928, 0.501969, 0), App.Vector(1.014451, 0.566394, 0), App.Vector(0.985814, 0.622707, 0), App.Vector(0.952652, 0.671542, 0), App.Vector(0.914773, 0.713228, 0), App.Vector(0.872721, 0.749211, 0), App.Vector(0.826213, 0.779491, 0), App.Vector(0.775378, 0.80457, 0), App.Vector(0.720088, 0.823304, 0), App.Vector(0.660657, 0.837321, 0), App.Vector(0.596774, 0.845572, 0), App.Vector(0.55267, 0.846432, 0), App.Vector(0.529975, 0.846875, 0)], [4, 1, 1, 1, 1, 1, 1, 1, 1, 1, 1, 1, 1, 1, 1, 1, 4], [0, 1.50261862, 2.895407767, 4.182685949, 5.361245188, 6.439488336, 7.421939034, 8.328969596, 9.171036484, 9.973163414, 10.763455177, 11.563821661, 12.37285522, 13.214177287, 14.088724386, 15.01653284, 16], False, 3, [1, 1, 1, 1, 1, 1, 1, 1, 1, 1, 1, 1, 1, 1, 1, 1, 1, 1, 1], False),  # 16
], False)
sketch3.addConstraint([
    Sketcher.Constraint("Block", 1),
    Sketcher.Constraint("Block", 2),
    Sketcher.Constraint("Block", 4),
    Sketcher.Constraint("Block", 6),
    Sketcher.Constraint("Block", 7),
    Sketcher.Constraint("Block", 8),
    Sketcher.Constraint("Block", 12),
    Sketcher.Constraint("Block", 16),
    Sketcher.Constraint("Coincident", 0, 2, 1, 2),
    Sketcher.Constraint("Coincident", 2, 1, 3, 1),
    Sketcher.Constraint("Coincident", 3, 2, 4, 2),
    Sketcher.Constraint("Coincident", 4, 1, 5, 1),
    Sketcher.Constraint("Coincident", 5, 2, 6, 2),
    Sketcher.Constraint("Coincident", 6, 1, 0, 1),
    Sketcher.Constraint("Coincident", 8, 1, 9, 1),
    Sketcher.Constraint("Coincident", 9, 2, 10, 1),
    Sketcher.Constraint("Coincident", 10, 2, 11, 1),
    Sketcher.Constraint("Coincident", 11, 2, 7, 2),
    Sketcher.Constraint("Coincident", 12, 1, 13, 1),
    Sketcher.Constraint("Coincident", 13, 2, 14, 1),
    Sketcher.Constraint("Coincident", 14, 2, 15, 1),
    Sketcher.Constraint("Coincident", 15, 2, 16, 2),
    Sketcher.Constraint("Horizontal", 9),
    Sketcher.Constraint("Vertical", 10),
    Sketcher.Constraint("Horizontal", 11),
    Sketcher.Constraint("Horizontal", 13),
    Sketcher.Constraint("Vertical", 14),
    Sketcher.Constraint("Horizontal", 15),
    Sketcher.Constraint("DistanceX", 9, 2, 9, 1, Q("0.397661 mm")),
    Sketcher.Constraint("DistanceX", 13, 2, 13, 1, Q("0.128655 mm")),
])
pocket2 = body.newObject("PartDesign::Pocket", "Pocket001")
pocket2.Profile = sketch3
pocket2.setExpression("Length", "Params.pocket2_length")

doc.recompute()
